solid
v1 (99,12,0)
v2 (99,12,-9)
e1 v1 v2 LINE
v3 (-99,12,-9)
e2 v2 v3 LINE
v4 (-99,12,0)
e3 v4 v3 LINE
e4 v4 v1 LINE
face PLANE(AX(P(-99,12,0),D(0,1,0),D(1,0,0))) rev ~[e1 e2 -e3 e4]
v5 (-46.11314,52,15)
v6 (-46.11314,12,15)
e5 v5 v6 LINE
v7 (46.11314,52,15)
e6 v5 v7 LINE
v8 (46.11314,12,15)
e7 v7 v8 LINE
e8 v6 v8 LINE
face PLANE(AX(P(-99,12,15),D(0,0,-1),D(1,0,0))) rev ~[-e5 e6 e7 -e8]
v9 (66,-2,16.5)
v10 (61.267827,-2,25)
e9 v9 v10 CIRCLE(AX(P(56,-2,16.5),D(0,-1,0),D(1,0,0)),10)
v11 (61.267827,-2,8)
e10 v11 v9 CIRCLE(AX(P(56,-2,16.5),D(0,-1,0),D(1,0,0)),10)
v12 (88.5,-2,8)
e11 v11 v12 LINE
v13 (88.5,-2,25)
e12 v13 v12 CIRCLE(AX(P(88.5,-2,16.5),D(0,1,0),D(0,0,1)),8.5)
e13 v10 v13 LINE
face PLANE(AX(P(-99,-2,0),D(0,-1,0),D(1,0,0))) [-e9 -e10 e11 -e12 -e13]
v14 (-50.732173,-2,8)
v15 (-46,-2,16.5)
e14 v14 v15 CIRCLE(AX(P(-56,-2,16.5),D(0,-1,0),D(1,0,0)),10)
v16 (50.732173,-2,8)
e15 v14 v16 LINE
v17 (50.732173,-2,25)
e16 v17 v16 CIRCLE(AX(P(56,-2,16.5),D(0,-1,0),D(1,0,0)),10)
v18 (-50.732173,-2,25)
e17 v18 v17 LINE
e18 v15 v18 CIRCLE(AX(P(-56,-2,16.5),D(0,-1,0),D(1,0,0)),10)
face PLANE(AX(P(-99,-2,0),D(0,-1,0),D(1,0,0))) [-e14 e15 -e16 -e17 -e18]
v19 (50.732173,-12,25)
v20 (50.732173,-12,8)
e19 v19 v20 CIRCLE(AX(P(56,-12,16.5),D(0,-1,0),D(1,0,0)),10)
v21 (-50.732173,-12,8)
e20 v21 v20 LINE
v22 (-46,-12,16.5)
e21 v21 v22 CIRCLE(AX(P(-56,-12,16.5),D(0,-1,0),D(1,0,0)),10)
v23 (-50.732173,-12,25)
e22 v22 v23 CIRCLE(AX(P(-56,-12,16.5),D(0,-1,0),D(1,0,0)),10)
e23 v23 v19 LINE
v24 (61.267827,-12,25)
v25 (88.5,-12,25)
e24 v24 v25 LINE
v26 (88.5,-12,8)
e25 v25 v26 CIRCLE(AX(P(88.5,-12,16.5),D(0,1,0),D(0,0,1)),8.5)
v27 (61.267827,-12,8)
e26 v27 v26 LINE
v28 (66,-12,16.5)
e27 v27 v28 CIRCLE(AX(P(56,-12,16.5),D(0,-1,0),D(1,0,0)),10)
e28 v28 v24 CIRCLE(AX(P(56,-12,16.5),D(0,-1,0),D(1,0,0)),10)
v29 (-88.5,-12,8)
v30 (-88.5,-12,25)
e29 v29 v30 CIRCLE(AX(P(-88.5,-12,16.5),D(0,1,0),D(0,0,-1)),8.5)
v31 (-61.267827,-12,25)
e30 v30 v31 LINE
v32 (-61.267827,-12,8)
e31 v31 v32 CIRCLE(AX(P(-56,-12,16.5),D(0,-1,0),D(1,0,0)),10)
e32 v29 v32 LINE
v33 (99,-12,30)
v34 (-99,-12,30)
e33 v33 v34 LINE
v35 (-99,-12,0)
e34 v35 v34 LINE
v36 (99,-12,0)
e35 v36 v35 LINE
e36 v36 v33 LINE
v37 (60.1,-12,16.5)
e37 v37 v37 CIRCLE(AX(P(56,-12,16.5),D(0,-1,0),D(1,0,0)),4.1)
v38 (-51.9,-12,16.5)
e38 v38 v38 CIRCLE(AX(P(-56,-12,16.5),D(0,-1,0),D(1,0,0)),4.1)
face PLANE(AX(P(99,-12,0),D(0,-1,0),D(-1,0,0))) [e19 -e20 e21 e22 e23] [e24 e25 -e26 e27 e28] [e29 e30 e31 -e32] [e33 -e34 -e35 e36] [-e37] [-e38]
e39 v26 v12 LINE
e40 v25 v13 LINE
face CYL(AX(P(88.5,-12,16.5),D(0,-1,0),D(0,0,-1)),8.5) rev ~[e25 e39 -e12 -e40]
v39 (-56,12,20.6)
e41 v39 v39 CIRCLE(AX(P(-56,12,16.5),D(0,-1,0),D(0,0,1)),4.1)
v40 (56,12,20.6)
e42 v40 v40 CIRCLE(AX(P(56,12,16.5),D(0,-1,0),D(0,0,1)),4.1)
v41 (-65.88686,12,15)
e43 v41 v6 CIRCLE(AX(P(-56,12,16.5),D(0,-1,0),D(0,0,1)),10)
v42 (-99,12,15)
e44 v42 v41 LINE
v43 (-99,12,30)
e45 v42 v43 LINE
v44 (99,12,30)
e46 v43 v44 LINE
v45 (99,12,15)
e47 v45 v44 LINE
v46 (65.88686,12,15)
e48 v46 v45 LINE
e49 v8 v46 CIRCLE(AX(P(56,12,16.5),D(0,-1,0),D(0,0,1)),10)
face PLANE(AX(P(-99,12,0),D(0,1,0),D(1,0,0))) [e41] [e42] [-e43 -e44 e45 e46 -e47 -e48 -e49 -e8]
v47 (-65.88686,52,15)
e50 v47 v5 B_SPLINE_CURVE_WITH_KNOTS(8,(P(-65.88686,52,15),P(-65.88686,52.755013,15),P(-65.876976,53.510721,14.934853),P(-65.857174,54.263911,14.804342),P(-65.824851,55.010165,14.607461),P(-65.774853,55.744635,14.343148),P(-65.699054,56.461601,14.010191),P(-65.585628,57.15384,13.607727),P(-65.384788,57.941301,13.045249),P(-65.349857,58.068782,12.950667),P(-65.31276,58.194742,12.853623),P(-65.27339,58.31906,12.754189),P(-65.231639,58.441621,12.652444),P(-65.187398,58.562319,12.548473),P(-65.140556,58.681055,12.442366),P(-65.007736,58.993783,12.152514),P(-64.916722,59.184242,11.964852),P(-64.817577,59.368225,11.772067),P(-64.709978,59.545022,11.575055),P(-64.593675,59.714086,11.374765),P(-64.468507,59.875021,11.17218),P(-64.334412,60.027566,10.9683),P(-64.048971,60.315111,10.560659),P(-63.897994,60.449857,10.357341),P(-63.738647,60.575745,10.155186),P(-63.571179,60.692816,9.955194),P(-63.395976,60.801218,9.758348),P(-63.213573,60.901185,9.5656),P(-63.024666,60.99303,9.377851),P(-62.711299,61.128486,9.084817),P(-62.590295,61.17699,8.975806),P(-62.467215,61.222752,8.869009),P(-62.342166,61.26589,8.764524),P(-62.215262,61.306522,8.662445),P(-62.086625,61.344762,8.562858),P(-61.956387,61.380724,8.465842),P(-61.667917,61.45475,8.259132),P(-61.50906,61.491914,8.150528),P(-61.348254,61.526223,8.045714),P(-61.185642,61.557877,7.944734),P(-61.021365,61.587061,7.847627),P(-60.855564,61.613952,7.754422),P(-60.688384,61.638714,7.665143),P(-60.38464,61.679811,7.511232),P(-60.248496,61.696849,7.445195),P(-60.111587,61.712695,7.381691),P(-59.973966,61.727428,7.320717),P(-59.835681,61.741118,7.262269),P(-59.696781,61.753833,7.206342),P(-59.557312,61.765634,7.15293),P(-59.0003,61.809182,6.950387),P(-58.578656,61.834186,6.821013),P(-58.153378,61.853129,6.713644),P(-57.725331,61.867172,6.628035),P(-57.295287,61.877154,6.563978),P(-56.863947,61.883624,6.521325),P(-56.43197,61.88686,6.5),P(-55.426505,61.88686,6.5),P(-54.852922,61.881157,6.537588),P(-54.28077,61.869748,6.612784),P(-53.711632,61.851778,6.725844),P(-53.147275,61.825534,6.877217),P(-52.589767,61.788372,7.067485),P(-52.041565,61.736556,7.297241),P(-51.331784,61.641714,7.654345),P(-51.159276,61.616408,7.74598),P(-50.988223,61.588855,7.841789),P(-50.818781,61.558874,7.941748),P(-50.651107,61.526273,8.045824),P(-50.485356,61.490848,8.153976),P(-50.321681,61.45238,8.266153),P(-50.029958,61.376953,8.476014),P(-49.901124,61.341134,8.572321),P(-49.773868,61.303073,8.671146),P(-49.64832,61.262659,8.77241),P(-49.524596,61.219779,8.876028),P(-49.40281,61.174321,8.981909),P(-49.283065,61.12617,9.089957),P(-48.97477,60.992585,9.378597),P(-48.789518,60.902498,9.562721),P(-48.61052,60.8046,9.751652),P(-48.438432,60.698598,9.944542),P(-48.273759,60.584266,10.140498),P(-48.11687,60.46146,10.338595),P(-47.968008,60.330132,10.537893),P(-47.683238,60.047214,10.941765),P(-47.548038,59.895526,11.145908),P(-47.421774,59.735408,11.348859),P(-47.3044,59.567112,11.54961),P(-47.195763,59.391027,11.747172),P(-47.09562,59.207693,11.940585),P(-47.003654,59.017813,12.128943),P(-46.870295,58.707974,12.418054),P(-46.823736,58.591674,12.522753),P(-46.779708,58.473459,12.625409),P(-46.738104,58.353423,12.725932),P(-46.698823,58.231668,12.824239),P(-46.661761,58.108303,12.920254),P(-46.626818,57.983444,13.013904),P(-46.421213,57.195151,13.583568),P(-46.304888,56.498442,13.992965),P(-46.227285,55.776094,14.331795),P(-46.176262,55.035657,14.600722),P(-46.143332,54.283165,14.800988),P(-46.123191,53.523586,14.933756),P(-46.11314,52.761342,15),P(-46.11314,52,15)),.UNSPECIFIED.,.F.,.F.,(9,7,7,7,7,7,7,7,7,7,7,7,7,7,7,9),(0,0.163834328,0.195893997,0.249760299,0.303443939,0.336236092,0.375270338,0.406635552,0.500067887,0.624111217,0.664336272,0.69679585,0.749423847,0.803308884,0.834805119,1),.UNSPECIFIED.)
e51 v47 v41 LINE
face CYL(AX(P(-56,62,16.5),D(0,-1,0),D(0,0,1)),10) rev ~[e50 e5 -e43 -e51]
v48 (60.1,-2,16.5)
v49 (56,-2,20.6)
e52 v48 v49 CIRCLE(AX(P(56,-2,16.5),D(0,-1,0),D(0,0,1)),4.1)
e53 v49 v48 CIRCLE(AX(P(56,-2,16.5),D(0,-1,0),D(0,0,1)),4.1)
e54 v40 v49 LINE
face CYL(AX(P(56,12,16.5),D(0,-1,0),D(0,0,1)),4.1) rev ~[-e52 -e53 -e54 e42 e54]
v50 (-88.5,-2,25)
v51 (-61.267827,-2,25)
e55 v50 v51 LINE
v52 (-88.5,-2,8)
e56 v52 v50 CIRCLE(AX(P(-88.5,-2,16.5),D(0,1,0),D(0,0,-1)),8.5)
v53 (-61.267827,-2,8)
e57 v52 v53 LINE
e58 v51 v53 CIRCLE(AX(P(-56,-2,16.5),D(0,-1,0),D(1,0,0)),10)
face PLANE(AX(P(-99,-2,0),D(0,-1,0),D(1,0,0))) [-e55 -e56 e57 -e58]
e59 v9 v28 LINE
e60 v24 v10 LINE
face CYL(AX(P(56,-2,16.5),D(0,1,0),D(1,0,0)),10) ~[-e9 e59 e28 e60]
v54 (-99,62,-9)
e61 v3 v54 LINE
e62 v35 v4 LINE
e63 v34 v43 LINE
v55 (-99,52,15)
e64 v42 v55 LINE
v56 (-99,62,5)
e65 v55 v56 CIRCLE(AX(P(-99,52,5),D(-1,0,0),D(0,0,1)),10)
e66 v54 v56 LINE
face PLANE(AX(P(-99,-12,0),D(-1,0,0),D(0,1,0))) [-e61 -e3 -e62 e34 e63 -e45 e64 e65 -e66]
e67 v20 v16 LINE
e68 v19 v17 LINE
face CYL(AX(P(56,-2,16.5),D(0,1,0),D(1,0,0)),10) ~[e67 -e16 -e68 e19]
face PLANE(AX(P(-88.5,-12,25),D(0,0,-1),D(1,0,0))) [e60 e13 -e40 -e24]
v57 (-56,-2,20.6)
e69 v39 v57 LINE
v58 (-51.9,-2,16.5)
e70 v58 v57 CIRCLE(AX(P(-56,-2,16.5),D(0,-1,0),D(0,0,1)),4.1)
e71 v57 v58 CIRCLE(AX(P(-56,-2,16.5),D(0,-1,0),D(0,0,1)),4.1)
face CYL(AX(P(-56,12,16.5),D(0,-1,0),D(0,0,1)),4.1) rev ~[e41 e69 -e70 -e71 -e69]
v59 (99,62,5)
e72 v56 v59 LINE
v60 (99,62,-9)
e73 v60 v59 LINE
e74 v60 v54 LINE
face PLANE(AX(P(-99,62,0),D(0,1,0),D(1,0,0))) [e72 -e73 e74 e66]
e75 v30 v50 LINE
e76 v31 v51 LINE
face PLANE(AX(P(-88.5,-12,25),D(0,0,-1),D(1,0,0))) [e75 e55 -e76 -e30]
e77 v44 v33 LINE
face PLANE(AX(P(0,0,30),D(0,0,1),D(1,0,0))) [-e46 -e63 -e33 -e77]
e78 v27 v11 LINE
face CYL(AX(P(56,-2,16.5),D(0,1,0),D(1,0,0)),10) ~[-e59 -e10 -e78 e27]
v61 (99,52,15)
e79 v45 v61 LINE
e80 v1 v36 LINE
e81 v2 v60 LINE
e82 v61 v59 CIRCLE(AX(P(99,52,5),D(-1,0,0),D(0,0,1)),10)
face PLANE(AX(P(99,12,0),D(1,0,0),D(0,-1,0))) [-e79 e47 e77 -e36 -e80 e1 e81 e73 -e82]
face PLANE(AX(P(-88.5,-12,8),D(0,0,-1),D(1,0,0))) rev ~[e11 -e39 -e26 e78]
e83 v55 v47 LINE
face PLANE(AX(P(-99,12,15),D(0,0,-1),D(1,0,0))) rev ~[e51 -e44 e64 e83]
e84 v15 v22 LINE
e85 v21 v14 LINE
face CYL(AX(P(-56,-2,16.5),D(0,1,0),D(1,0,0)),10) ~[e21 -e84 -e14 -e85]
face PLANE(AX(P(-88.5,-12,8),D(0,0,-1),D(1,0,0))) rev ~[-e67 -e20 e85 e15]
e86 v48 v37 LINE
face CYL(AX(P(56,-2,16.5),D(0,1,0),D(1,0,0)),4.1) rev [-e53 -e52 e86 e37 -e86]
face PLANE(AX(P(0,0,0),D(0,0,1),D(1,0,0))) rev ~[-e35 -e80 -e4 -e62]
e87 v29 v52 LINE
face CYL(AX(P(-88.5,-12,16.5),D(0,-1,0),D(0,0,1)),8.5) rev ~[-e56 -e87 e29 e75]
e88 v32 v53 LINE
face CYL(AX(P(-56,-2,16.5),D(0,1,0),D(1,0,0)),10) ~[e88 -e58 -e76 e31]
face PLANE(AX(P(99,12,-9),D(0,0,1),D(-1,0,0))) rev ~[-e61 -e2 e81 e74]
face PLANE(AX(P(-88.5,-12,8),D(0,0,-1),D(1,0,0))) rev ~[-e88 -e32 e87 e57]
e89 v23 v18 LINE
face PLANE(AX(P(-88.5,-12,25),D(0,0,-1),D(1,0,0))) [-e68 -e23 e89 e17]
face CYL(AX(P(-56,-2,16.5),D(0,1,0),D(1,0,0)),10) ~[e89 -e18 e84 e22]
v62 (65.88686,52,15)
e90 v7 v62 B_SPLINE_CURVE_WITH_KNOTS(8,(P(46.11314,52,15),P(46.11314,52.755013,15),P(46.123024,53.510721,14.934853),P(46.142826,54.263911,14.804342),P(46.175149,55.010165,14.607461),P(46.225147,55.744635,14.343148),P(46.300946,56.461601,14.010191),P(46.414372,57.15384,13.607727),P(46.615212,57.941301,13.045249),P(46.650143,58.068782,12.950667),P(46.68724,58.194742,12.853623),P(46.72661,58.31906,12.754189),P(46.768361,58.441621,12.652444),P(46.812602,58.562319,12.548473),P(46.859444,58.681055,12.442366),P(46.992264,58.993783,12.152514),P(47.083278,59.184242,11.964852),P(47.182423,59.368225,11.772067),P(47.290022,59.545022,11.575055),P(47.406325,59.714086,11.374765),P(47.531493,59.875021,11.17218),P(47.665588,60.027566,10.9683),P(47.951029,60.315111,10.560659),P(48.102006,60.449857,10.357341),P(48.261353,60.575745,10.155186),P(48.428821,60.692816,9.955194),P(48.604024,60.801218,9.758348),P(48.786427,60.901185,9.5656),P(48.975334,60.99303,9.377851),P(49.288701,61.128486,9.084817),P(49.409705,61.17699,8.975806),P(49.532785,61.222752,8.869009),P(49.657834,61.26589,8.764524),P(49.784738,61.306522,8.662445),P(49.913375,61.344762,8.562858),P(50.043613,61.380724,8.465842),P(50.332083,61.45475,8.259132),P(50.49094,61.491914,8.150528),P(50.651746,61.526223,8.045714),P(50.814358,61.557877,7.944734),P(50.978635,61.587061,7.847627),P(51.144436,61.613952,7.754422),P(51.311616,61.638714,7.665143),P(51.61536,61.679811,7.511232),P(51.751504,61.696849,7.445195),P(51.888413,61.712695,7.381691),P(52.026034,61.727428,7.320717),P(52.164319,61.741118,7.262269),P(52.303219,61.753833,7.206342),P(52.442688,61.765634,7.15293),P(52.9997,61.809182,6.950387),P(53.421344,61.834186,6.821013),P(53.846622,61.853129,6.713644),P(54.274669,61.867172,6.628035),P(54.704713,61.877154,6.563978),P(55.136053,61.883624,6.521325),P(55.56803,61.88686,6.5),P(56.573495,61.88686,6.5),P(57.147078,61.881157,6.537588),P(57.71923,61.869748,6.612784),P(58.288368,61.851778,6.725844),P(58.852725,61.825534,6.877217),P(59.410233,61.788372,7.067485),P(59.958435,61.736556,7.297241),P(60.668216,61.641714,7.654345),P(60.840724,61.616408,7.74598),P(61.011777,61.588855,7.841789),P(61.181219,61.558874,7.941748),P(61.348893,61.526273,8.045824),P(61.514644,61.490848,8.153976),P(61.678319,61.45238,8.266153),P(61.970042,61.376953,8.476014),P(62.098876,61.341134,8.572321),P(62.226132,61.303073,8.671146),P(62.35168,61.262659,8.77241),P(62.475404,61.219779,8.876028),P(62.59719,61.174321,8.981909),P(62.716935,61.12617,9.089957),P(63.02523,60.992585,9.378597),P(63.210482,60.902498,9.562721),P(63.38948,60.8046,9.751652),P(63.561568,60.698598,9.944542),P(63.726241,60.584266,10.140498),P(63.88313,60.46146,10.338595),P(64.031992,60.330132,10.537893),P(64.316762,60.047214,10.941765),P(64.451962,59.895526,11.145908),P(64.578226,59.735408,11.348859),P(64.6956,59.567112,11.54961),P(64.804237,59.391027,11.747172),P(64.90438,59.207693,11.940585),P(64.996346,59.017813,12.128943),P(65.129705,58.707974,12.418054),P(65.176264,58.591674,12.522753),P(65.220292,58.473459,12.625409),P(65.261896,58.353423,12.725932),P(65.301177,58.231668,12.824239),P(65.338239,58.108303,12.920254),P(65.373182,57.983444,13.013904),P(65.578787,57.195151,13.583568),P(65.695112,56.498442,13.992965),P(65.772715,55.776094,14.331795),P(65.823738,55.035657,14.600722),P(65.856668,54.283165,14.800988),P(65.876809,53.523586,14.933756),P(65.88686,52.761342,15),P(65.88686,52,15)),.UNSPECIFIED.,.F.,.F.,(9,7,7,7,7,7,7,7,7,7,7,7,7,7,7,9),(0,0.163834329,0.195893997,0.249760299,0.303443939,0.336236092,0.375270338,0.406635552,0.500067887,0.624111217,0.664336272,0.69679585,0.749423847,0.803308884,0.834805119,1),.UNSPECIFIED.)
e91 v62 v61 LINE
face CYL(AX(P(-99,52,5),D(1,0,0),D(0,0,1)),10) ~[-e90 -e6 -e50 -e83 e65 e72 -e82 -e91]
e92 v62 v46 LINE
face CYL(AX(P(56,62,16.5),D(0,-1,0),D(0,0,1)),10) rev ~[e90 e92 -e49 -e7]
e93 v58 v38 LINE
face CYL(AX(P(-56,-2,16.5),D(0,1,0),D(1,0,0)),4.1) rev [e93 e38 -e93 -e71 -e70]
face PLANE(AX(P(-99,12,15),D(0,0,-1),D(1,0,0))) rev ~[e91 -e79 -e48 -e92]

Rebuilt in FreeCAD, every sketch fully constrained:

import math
import FreeCAD as App
import Part
import Sketcher
from FreeCAD import Vector
Q = App.Units.Quantity


def edges_at(feature, points):
    """Names of the edges that pass closest to the given points."""
    edges = feature.Shape.Edges
    near = lambda p: min(range(len(edges)), key=lambda i: edges[i].distToShape(Part.Vertex(*p))[0])
    return sorted({f"Edge{near(p) + 1}" for p in points})


def add_polygon(sketch, points):
    """Adds a closed chain of lines whose ends are joined by coincident constraints."""
    first, n = sketch.GeometryCount, len(points)
    for a, b in zip(points, points[1:] + points[:1]):
        sketch.addGeometry(Part.LineSegment(App.Vector(*a, 0), App.Vector(*b, 0)), False)
    for i in range(n):
        sketch.addConstraint(Sketcher.Constraint("Coincident", first + i, 2, first + (i + 1) % n, 1))

doc = App.newDocument("Part")
body = doc.addObject("PartDesign::Body", "Body")

# Sketch on XY plane
sketch1 = body.newObject("Sketcher::SketchObject", "Sketch")
sketch1.AttachmentSupport = (doc.getObject("XY_Plane"), [""])
sketch1.MapMode = "FlatFace"
add_polygon(sketch1, [(99, 12), (-99, 12), (-99, -12), (99, -12)])  # lines 0-3
sketch1.addConstraint([
    Sketcher.Constraint("Horizontal", 0),
    Sketcher.Constraint("Vertical", 1),
    Sketcher.Constraint("Horizontal", 2),
    Sketcher.Constraint("Vertical", 3),
    Sketcher.Constraint("Symmetric", 0, 2, 2, 2, -1, 1),
    Sketcher.Constraint("DistanceX", 0, 2, 0, 1, Q("198 mm")),
    Sketcher.Constraint("DistanceY", 1, 2, 1, 1, Q("24 mm")),
])
pad1 = body.newObject("PartDesign::Pad", "Pad")
pad1.Profile = sketch1
pad1.Length = 30

# Sketch on XZ plane
sketch2 = body.newObject("Sketcher::SketchObject", "Sketch001")
sketch2.AttachmentSupport = (doc.getObject("XZ_Plane"), [""])
sketch2.MapMode = "FlatFace"
sketch2.AttachmentOffset = App.Placement(Vector(0, 0, -12), App.Rotation())
add_polygon(sketch2, [(99, 15), (99, -9), (-99, -9), (-99, 15)])  # lines 0-3
sketch2.addConstraint([
    Sketcher.Constraint("Vertical", 0),
    Sketcher.Constraint("Horizontal", 1),
    Sketcher.Constraint("Vertical", 2),
    Sketcher.Constraint("Horizontal", 3),
    Sketcher.Constraint("DistanceY", 0, 2, -1, 1, Q("9 mm")),
    Sketcher.Constraint("DistanceX", 1, 2, 1, 1, Q("198 mm")),
    Sketcher.Constraint("DistanceY", 0, 2, 0, 1, Q("24 mm")),
    Sketcher.Constraint("DistanceX", -1, 1, 0, 2, Q("99 mm")),
])
pad2 = body.newObject("PartDesign::Pad", "Pad001")
pad2.Profile = sketch2
pad2.Length = 50
pad2.Reversed = True
doc.recompute()

fillet = body.newObject("PartDesign::Fillet", "Fillet")
fillet.Base = (pad2, edges_at(pad2, [(0, 62, 15)]))
fillet.Radius = 10

# Sketch on XZ plane
sketch3 = body.newObject("Sketcher::SketchObject", "Sketch002")
sketch3.AttachmentSupport = (doc.getObject("XZ_Plane"), [""])
sketch3.MapMode = "FlatFace"
sketch3.AttachmentOffset = App.Placement(Vector(0, 0, -62), App.Rotation())
sketch3.addGeometry([
    Part.Circle(Vector(56, 16.5, 0), Vector(0, 0, 1), 4.1),
    Part.Circle(Vector(-56, 16.5, 0), Vector(0, 0, 1), 4.1),
], False)
sketch3.addConstraint([
    Sketcher.Constraint("Equal", 0, 1),
    Sketcher.Constraint("Symmetric", 0, 3, 1, 3, -2),
    Sketcher.Constraint("Diameter", 0, Q("8.2 mm")),
    Sketcher.Constraint("DistanceX", -1, 1, 0, 3, Q("56 mm")),
    Sketcher.Constraint("DistanceY", -1, 1, 0, 3, Q("16.5 mm")),
])
doc.recompute()
hole = body.newObject("PartDesign::Hole", "Hole")
hole.Profile = sketch3
hole.ThreadType = "None"
hole.Diameter = 8.2
hole.DepthType = "ThroughAll"
hole.HoleCutType = "Counterbore"
hole.HoleCutDiameter = 20
hole.HoleCutDepth = 50
hole.Reversed = True

# Sketch on XZ plane
sketch4 = body.newObject("Sketcher::SketchObject", "Sketch003")
sketch4.AttachmentSupport = (doc.getObject("XZ_Plane"), [""])
sketch4.MapMode = "FlatFace"
sketch4.AttachmentOffset = App.Placement(Vector(0, 0, 12), App.Rotation())
sketch4.addGeometry([
    Part.ArcOfCircle(Part.Circle(Vector(-88.5, 16.5, 0), Vector(0, 0, 1), 8.5), math.radians(90), math.radians(270)),  # 0
    Part.LineSegment(Vector(-88.5, 8, 0), Vector(88.5, 8, 0)),  # 1
    Part.ArcOfCircle(Part.Circle(Vector(88.5, 16.5, 0), Vector(0, 0, 1), 8.5), math.radians(-90), math.radians(90)),  # 2
    Part.LineSegment(Vector(88.5, 25, 0), Vector(-88.5, 25, 0)),  # 3
    Part.Circle(Vector(56, 16.5, 0), Vector(0, 0, 1), 4.1),  # 4
], False)
sketch4.addConstraint([
    Sketcher.Constraint("Tangent", 0, 2, 1, 1),
    Sketcher.Constraint("Tangent", 1, 2, 2, 1),
    Sketcher.Constraint("Tangent", 2, 2, 3, 1),
    Sketcher.Constraint("Tangent", 3, 2, 0, 1),
    Sketcher.Constraint("Horizontal", 1),
    Sketcher.Constraint("Horizontal", 3),
    Sketcher.Constraint("Horizontal", 2, 3, 4, 3),
    Sketcher.Constraint("Radius", 0, Q("8.5 mm")),
    Sketcher.Constraint("DistanceX", 1, 1, 1, 2, Q("177 mm")),
    Sketcher.Constraint("DistanceX", -1, 1, 4, 3, Q("56 mm")),
    Sketcher.Constraint("Diameter", 4, Q("8.2 mm")),
    Sketcher.Constraint("DistanceY", -1, 1, 0, 2, Q("8 mm")),
    Sketcher.Constraint("DistanceX", 0, 3, -1, 1, Q("88.5 mm")),
])
pocket1 = body.newObject("PartDesign::Pocket", "Pocket")
pocket1.Profile = sketch4
pocket1.Length = 10

# Sketch on XZ plane
sketch5 = body.newObject("Sketcher::SketchObject", "Sketch004")
sketch5.AttachmentSupport = (doc.getObject("XZ_Plane"), [""])
sketch5.MapMode = "FlatFace"
sketch5.AttachmentOffset = App.Placement(Vector(0, 0, 2), App.Rotation())
sketch5.addGeometry([
    Part.Circle(Vector(-56, 16.5, 0), Vector(0, 0, 1), 10),
    Part.Circle(Vector(-56, 16.5, 0), Vector(0, 0, 1), 4.1),
    Part.Circle(Vector(56, 16.5, 0), Vector(0, 0, 1), 10),
    Part.Circle(Vector(56, 16.5, 0), Vector(0, 0, 1), 4.1),
], False)
sketch5.addConstraint([
    Sketcher.Constraint("Coincident", 1, 3, 0, 3),
    Sketcher.Constraint("Coincident", 3, 3, 2, 3),
    Sketcher.Constraint("Equal", 0, 2),
    Sketcher.Constraint("Equal", 1, 3),
    Sketcher.Constraint("Symmetric", 0, 3, 2, 3, -2),
    Sketcher.Constraint("Diameter", 0, Q("20 mm")),
    Sketcher.Constraint("Diameter", 1, Q("8.2 mm")),
    Sketcher.Constraint("DistanceX", 0, 3, -1, 1, Q("56 mm")),
    Sketcher.Constraint("DistanceY", -1, 1, 0, 3, Q("16.5 mm")),
])
pad3 = body.newObject("PartDesign::Pad", "Pad002")
pad3.Profile = sketch5
pad3.Length = 10

doc.recompute()
